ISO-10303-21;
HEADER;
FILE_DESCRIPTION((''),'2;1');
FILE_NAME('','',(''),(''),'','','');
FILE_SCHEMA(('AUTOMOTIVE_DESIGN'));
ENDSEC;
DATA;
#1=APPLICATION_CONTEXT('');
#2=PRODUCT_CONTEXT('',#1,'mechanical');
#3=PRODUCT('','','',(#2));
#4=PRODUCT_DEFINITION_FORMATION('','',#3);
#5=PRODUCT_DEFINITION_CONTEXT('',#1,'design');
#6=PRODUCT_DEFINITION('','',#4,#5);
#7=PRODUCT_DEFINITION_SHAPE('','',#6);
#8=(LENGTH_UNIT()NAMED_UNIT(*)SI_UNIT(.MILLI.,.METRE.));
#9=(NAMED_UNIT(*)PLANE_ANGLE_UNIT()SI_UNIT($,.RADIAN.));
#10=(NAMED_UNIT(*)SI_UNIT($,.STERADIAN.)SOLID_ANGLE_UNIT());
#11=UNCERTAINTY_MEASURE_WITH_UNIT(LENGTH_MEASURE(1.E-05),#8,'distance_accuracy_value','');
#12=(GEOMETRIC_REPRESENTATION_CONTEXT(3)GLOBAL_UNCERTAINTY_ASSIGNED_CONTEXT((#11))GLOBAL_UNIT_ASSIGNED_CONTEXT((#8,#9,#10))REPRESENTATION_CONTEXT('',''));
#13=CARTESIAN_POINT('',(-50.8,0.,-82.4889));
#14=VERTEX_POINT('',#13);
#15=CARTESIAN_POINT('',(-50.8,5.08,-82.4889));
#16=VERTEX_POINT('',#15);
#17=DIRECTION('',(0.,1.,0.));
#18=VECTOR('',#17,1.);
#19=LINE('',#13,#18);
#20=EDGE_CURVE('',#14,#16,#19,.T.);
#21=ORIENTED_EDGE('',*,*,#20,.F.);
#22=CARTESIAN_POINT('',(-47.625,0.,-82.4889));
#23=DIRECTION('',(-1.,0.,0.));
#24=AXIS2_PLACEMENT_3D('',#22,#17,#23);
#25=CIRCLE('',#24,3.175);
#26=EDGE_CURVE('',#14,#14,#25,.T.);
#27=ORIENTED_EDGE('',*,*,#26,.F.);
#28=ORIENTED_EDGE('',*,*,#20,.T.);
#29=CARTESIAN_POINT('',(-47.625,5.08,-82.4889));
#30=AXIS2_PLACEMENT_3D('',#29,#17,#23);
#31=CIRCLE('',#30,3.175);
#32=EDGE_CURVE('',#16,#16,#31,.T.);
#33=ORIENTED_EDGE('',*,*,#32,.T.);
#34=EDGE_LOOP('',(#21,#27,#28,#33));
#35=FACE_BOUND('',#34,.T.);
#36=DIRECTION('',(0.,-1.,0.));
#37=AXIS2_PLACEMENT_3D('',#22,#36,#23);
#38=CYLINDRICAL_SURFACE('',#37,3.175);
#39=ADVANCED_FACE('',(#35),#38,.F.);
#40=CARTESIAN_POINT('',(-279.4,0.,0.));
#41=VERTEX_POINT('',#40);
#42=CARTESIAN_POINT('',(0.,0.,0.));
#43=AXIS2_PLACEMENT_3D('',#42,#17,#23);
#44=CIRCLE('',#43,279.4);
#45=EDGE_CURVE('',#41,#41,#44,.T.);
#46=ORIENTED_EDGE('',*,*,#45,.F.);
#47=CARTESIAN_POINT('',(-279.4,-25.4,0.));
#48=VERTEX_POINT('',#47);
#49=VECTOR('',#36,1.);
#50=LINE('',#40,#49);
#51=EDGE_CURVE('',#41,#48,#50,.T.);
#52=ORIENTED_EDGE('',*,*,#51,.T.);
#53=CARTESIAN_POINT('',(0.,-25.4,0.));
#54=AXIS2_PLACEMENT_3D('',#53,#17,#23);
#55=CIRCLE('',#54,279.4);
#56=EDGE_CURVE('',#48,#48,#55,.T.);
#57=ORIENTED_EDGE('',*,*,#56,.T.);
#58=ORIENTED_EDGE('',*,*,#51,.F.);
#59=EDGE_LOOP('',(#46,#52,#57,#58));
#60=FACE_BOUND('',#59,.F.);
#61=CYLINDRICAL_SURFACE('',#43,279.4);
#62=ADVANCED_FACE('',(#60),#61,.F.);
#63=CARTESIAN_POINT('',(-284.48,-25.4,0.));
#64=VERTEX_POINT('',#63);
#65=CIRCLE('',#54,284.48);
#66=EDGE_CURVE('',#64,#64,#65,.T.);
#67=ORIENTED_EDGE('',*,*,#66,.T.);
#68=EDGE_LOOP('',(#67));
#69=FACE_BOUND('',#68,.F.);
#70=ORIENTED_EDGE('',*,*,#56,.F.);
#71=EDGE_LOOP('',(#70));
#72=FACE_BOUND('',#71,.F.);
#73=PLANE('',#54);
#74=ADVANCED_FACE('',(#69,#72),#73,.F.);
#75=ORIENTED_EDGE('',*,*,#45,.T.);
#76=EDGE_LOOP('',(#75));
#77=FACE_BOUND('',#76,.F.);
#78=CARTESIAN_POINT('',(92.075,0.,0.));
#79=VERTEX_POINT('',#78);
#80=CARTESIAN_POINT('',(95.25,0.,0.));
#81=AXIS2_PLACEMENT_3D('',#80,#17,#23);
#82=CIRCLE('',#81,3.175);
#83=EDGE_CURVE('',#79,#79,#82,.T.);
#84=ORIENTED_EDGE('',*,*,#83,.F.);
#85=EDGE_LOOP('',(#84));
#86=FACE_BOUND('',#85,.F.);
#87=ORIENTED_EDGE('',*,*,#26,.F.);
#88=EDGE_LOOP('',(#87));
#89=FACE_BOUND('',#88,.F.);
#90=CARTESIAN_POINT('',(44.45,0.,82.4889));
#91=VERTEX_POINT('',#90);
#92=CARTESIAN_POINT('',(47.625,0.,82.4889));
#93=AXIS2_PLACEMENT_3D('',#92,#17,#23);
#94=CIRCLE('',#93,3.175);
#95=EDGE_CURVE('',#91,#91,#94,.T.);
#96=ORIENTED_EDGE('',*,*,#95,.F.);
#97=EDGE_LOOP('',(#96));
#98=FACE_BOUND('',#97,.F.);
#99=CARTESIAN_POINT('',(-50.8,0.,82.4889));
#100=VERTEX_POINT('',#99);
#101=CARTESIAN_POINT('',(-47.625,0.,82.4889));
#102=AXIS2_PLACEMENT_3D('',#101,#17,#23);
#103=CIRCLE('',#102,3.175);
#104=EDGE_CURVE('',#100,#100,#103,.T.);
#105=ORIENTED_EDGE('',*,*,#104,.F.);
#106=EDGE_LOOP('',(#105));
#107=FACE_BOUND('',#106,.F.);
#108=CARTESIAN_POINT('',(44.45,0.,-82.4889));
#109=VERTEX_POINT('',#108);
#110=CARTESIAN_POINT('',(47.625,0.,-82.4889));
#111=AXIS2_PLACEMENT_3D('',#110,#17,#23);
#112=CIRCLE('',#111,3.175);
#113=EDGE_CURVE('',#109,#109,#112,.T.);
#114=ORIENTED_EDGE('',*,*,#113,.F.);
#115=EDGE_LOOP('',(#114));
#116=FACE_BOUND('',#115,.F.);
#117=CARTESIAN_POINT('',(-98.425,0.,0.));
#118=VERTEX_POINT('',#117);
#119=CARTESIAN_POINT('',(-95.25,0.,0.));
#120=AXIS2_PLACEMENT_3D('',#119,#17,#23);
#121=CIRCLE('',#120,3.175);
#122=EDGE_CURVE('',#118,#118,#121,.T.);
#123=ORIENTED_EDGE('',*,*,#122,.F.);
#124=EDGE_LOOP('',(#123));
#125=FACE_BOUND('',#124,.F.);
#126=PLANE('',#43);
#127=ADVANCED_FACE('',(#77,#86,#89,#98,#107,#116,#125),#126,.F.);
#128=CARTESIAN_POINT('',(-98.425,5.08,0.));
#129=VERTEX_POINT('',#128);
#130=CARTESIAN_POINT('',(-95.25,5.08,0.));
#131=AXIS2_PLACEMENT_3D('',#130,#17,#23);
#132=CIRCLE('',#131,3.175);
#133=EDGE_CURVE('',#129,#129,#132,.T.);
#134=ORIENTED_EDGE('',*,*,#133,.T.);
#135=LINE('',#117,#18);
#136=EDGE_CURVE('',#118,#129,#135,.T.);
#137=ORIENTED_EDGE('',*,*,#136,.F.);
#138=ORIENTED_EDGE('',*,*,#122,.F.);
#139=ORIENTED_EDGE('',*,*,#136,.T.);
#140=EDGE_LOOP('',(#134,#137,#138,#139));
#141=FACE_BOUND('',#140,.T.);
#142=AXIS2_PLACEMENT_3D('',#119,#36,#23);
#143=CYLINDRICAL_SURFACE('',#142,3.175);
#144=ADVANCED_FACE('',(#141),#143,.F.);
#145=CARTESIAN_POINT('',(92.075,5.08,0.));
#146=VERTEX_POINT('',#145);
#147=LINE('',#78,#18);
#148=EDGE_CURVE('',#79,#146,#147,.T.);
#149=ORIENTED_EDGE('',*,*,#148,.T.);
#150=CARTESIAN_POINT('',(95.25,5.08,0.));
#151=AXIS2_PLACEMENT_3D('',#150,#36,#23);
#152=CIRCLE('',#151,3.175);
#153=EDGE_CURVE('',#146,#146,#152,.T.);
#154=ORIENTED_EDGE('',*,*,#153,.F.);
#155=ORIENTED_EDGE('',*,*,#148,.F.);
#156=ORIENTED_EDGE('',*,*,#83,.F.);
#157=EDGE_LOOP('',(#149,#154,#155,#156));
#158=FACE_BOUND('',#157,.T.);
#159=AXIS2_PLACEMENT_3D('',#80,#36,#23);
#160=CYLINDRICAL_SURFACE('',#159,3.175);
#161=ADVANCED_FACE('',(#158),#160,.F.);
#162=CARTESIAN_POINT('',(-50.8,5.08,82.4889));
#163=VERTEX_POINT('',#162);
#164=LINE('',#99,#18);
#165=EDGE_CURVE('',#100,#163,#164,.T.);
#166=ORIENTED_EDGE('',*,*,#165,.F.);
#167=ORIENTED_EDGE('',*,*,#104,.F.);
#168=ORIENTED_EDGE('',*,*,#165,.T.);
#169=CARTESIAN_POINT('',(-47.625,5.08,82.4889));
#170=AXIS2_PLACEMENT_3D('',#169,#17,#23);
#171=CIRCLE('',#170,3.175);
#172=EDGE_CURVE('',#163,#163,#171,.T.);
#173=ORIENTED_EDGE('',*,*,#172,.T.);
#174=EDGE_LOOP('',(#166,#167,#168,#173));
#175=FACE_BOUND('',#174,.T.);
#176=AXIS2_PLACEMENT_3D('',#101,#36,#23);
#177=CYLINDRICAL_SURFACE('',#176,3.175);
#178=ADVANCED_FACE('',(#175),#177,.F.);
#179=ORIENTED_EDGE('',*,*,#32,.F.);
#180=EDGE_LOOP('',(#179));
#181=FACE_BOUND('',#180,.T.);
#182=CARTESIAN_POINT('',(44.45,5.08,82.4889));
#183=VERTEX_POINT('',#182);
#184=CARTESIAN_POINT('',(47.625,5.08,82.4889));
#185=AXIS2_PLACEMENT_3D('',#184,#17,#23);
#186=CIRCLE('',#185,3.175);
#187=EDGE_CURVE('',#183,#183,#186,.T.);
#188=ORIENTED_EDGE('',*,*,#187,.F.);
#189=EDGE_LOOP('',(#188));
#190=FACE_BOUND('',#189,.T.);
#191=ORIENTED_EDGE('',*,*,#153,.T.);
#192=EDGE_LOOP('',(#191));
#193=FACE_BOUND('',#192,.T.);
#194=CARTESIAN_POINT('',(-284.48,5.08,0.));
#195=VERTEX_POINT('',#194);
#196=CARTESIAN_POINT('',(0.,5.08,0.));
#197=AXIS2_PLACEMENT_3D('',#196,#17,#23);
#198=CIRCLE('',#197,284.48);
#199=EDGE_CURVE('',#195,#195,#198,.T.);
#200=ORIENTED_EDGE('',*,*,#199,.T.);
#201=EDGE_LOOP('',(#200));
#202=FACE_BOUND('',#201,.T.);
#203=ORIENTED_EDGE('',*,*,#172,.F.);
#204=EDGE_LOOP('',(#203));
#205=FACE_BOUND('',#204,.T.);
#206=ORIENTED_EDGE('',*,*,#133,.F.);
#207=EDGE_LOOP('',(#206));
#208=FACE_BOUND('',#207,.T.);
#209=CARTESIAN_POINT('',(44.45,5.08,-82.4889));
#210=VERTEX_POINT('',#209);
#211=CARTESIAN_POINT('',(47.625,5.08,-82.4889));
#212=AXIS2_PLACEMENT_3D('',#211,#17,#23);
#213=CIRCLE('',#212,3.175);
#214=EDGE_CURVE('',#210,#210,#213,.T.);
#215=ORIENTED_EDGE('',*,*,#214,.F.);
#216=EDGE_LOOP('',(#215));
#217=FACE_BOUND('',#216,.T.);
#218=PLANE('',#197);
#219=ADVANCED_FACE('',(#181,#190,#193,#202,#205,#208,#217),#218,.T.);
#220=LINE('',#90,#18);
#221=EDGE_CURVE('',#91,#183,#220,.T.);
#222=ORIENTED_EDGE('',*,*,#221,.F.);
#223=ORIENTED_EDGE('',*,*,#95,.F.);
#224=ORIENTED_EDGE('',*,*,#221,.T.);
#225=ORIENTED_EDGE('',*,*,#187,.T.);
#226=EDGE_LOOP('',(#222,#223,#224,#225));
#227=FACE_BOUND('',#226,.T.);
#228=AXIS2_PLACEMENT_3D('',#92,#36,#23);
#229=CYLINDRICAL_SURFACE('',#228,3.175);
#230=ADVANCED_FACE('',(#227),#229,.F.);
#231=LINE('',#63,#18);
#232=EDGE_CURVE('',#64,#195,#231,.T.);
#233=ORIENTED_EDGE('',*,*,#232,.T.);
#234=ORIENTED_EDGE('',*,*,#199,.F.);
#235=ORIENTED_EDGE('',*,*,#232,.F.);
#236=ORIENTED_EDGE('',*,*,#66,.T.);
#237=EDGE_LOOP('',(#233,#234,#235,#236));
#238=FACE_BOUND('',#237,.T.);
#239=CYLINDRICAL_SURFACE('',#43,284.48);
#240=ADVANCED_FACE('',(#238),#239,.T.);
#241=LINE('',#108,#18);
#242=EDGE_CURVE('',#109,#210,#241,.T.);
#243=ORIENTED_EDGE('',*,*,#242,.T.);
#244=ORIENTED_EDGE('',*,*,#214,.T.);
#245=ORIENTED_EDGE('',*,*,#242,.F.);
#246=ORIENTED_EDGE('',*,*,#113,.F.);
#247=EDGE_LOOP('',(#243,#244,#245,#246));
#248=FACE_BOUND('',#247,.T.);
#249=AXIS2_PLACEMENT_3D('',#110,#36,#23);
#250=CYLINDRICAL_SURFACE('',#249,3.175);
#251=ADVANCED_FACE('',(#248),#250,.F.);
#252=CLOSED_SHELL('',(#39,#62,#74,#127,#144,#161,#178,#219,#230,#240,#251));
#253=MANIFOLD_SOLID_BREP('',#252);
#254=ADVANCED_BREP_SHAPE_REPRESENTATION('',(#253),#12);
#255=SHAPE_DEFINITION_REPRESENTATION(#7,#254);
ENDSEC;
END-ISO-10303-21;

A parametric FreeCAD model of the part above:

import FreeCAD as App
import Part
import Sketcher

V = App.Vector
Q = App.Units.Quantity

doc = App.newDocument("Part")
body = doc.addObject("PartDesign::Body", "Body")

sketch1 = body.newObject("Sketcher::SketchObject", "Sketch")
sketch1.AttachmentSupport = (doc.getObject("XZ_Plane"), [""])
sketch1.MapMode = "FlatFace"
sketch1.addGeometry([
    Part.Circle(V(0, 0, 0), V(0, 0, 1), 284.5),
    Part.Circle(V(-95.2, 0, 0), V(0, 0, 1), 3.2),
    Part.Circle(V(-47.6, 82.5, 0), V(0, 0, 1), 3.2),
    Part.Circle(V(-47.6, -82.5, 0), V(0, 0, 1), 3.2),
    Part.Circle(V(47.6, 82.5, 0), V(0, 0, 1), 3.2),
    Part.Circle(V(95.2, 0, 0), V(0, 0, 1), 3.2),
    Part.Circle(V(47.6, -82.5, 0), V(0, 0, 1), 3.2),
], False)
sketch1.addConstraint([
    Sketcher.Constraint("Coincident", 0, 3, -1, 1),
    Sketcher.Constraint("Equal", 1, 2),
    Sketcher.Constraint("Equal", 2, 3),
    Sketcher.Constraint("Equal", 3, 4),
    Sketcher.Constraint("Equal", 4, 5),
    Sketcher.Constraint("Equal", 5, 6),
    Sketcher.Constraint("Symmetric", 3, 3, 4, 3, -1, 1),
    Sketcher.Constraint("Symmetric", 1, 3, 5, 3, -1, 1),
    Sketcher.Constraint("Symmetric", 2, 3, 6, 3, -1, 1),
    Sketcher.Constraint("Symmetric", 2, 3, 4, 3, -2),
    Sketcher.Constraint("PointOnObject", 1, 3, -1),
    Sketcher.Constraint("Diameter", 1, Q("0.25 in")),
    Sketcher.Constraint("Diameter", 0, Q("22.4 in")),
    Sketcher.Constraint("DistanceX", 1, 3, -1, 1, Q("3.75 in")),
    Sketcher.Constraint("DistanceX", 2, 3, 4, 3, Q("3.75 in")),
    Sketcher.Constraint("DistanceY", -1, 1, 2, 3, Q("3.2476 in")),
])
pad1 = body.newObject("PartDesign::Pad", "Pad")
pad1.Profile = sketch1
pad1.Length = Q("0.2 in")
pad1.Reversed = True

sketch2 = body.newObject("Sketcher::SketchObject", "Sketch001")
sketch2.AttachmentSupport = (doc.getObject("XZ_Plane"), [""])
sketch2.MapMode = "FlatFace"
sketch2.addGeometry([
    Part.Circle(V(0, 0, 0), V(0, 0, 1), 284),
    Part.Circle(V(0, 0, 0), V(0, 0, 1), 279),
], False)
sketch2.addConstraint([
    Sketcher.Constraint("Coincident", 0, 3, -1, 1),
    Sketcher.Constraint("Coincident", 1, 3, -1, 1),
    Sketcher.Constraint("Diameter", 1, Q("22 in")),
    Sketcher.Constraint("Diameter", 0, Q("22.4 in")),
])
pad2 = body.newObject("PartDesign::Pad", "Pad001")
pad2.Profile = sketch2
pad2.Length = Q("1 in")

doc.recompute()
